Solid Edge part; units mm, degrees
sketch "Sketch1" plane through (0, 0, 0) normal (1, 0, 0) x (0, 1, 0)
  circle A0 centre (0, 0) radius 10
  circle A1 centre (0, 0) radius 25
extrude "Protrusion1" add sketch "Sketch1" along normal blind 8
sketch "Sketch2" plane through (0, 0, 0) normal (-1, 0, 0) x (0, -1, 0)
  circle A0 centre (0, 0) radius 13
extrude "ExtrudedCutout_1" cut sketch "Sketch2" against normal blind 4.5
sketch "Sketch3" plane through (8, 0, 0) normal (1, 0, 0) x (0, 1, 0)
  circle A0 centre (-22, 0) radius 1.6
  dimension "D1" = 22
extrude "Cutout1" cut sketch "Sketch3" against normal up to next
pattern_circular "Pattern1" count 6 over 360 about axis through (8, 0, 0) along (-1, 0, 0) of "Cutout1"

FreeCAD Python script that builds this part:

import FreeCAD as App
import Part
import Sketcher
Q = App.Units.Quantity

doc = App.newDocument("Part")
body = doc.addObject("PartDesign::Body", "Body")

sketch1 = body.newObject("Sketcher::SketchObject", "Sketch")
sketch1.AttachmentSupport = (doc.getObject("YZ_Plane"), [""])
sketch1.MapMode = "FlatFace"
sketch1.addGeometry(Part.Circle(App.Vector(0, 0, 0), App.Vector(0, 0, 1), 25), False)
sketch1.addGeometry(Part.Circle(App.Vector(0, 0, 0), App.Vector(0, 0, 1), 10), False)
sketch1.addConstraint(Sketcher.Constraint("Coincident", 0, 3, -1, 1))
sketch1.addConstraint(Sketcher.Constraint("Coincident", 1, 3, -1, 1))
sketch1.addConstraint(Sketcher.Constraint("Diameter", 0, Q("50 mm")))
sketch1.addConstraint(Sketcher.Constraint("Diameter", 1, Q("20 mm")))
pad1 = body.newObject("PartDesign::Pad", "Pad")
pad1.Profile = sketch1
pad1.Length = 8

sketch2 = body.newObject("Sketcher::SketchObject", "Sketch001")
sketch2.AttachmentSupport = (doc.getObject("YZ_Plane"), [""])
sketch2.MapMode = "FlatFace"
sketch2.addGeometry(Part.Circle(App.Vector(0, 0, 0), App.Vector(0, 0, 1), 13), False)
sketch2.addConstraint(Sketcher.Constraint("Coincident", 0, 3, -1, 1))
sketch2.addConstraint(Sketcher.Constraint("Diameter", 0, Q("26 mm")))
pocket1 = body.newObject("PartDesign::Pocket", "Pocket")
pocket1.Profile = sketch2
pocket1.Length = 4.5
pocket1.Reversed = True

sketch3 = body.newObject("Sketcher::SketchObject", "Sketch002")
sketch3.AttachmentSupport = (doc.getObject("YZ_Plane"), [""])
sketch3.MapMode = "FlatFace"
sketch3.AttachmentOffset = App.Placement(App.Vector(0, 0, 8), App.Rotation())
sketch3.addGeometry(Part.Circle(App.Vector(-22, 0, 0), App.Vector(0, 0, 1), 1.6), False)
sketch3.addConstraint(Sketcher.Constraint("PointOnObject", 0, 3, -1))
sketch3.addConstraint(Sketcher.Constraint("Diameter", 0, Q("3.2 mm")))
sketch3.addConstraint(Sketcher.Constraint("DistanceX", 0, 3, -1, 1, Q("22 mm")))
pocket2 = body.newObject("PartDesign::Pocket", "Pocket001")
pocket2.Profile = sketch3
pocket2.Type = "UpToFirst"
doc.recompute()

polarpattern = body.newObject("PartDesign::PolarPattern", "PolarPattern")
polarpattern.Originals = [pocket2]
polarpattern.Axis = (doc.getObject("X_Axis"), [""])
polarpattern.Angle = 360
polarpattern.Occurrences = 6
body.Tip = polarpattern

doc.recompute()
